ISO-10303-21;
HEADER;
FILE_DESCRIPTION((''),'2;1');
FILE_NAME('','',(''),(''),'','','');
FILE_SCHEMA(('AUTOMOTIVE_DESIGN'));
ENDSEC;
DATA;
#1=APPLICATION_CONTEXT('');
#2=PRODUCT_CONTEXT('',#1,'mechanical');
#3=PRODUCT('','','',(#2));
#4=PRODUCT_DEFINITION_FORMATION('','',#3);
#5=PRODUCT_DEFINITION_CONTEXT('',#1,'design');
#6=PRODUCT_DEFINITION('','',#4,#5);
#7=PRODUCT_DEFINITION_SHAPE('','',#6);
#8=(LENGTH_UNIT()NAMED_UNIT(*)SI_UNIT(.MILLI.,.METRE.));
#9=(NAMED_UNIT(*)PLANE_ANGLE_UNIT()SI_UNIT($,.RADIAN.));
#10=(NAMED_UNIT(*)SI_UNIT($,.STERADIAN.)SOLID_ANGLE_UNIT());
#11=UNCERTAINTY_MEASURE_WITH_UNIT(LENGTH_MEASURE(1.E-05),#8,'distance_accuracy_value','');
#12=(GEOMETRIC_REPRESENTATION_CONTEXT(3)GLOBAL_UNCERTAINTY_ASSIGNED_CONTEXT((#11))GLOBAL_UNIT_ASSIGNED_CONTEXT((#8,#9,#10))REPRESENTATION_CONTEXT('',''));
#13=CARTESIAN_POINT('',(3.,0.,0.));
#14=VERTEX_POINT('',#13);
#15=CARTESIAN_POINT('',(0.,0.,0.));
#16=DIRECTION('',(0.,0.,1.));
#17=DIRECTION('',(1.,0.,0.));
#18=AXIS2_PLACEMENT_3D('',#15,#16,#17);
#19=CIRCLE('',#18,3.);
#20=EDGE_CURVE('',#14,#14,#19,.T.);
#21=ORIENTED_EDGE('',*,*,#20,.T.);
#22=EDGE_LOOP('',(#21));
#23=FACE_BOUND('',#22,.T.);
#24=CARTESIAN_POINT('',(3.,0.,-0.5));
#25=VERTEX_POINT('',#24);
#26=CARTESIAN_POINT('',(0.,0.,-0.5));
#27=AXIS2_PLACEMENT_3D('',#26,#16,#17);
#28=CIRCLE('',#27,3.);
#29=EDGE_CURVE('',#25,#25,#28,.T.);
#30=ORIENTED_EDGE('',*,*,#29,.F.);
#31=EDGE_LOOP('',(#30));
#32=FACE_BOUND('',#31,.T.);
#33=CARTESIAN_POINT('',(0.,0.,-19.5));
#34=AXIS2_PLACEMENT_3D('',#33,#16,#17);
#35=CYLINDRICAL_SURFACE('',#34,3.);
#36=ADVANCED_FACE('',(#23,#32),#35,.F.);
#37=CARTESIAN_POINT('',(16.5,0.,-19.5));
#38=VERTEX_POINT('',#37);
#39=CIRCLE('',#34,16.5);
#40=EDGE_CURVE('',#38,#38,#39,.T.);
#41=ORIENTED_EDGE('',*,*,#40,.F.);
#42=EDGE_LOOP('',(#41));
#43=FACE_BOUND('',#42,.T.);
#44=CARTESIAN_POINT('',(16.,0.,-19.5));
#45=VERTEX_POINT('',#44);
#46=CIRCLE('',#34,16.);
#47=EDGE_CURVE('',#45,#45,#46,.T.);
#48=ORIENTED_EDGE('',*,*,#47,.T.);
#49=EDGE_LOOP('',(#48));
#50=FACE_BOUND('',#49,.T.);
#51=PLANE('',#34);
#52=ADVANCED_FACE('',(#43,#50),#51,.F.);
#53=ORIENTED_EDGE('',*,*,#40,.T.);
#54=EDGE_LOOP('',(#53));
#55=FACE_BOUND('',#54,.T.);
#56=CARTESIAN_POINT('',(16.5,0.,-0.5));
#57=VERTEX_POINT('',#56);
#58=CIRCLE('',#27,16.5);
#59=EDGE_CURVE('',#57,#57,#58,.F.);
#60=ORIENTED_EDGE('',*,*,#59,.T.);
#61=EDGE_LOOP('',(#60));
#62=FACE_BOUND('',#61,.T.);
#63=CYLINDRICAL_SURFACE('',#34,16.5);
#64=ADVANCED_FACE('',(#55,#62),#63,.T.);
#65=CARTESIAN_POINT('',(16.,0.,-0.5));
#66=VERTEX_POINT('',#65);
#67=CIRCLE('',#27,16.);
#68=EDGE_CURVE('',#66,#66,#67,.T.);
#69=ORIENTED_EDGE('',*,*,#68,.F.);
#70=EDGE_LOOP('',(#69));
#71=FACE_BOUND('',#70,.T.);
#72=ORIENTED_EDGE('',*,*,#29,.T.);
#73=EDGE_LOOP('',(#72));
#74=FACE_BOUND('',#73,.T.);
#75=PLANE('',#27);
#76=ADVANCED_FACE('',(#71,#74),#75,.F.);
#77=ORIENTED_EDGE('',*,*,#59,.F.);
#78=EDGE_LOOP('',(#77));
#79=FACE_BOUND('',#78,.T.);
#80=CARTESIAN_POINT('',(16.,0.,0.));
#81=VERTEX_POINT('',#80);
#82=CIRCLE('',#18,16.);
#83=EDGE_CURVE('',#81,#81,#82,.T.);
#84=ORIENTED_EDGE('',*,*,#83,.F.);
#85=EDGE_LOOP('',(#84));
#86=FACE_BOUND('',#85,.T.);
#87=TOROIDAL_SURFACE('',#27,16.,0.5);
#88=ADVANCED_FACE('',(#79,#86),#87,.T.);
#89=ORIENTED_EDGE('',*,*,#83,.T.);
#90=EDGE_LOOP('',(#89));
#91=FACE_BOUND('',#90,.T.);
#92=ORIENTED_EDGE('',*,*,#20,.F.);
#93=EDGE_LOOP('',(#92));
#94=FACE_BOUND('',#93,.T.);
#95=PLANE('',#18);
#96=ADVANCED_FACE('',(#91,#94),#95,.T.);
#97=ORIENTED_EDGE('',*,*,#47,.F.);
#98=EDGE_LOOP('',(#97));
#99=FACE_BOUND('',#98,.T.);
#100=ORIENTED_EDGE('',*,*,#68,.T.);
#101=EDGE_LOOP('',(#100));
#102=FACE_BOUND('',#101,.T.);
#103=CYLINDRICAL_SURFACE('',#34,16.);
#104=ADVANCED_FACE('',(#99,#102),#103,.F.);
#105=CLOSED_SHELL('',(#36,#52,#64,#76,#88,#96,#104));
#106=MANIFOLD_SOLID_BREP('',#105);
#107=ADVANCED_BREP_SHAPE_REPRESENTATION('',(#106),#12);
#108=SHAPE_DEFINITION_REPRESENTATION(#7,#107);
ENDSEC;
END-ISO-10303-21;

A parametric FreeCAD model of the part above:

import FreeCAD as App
import Part
import Sketcher

V = App.Vector


def edges_at(feature, points):
    """Names of the edges that pass closest to the given points."""
    edges = feature.Shape.Edges
    near = lambda p: min(range(len(edges)), key=lambda i: edges[i].distToShape(Part.Vertex(*p))[0])
    return sorted({f"Edge{near(p) + 1}" for p in points})


def faces_at(feature, points):
    """Names of the faces that lie closest to the given points."""
    faces = feature.Shape.Faces
    near = lambda p: min(range(len(faces)), key=lambda i: faces[i].distToShape(Part.Vertex(*p))[0])
    return sorted({f"Face{near(p) + 1}" for p in points})

doc = App.newDocument("Part")
body = doc.addObject("PartDesign::Body", "Body")

sketch1 = doc.addObject("Sketcher::SketchObject", "Sketch")
body.addObject(sketch1)
sketch1.AttachmentSupport = (doc.XY_Plane, [""])
sketch1.MapMode = "FlatFace"
sketch1.addGeometry(Part.Circle(V(0, 0, 0), V(0, 0, 1), 16), False)
sketch1.addConstraint(Sketcher.Constraint("Coincident", 0, 3, -1, 1))
sketch1.addConstraint(Sketcher.Constraint("Diameter", 0, 33.0))
pad1 = doc.addObject("PartDesign::Pad", "Pad")
body.addObject(pad1)
pad1.Profile = sketch1
pad1.Length = 19.5
pad1.Reversed = True
doc.recompute()

thickness = doc.addObject("PartDesign::Thickness", "Thickness")
body.addObject(thickness)
thickness.Base = (pad1, faces_at(pad1, [(0, 0, -19.5)]))
thickness.Value = 0.5
thickness.Reversed = True
thickness.Join = "Intersection"

sketch2 = doc.addObject("Sketcher::SketchObject", "Sketch001")
body.addObject(sketch2)
sketch2.AttachmentSupport = (doc.XY_Plane, [""])
sketch2.MapMode = "FlatFace"
sketch2.addGeometry(Part.Circle(V(0, 0, 0), V(0, 0, 1), 3), False)
sketch2.addConstraint(Sketcher.Constraint("Coincident", 0, 3, -1, 1))
sketch2.addConstraint(Sketcher.Constraint("Diameter", 0, 6.0))
pocket1 = doc.addObject("PartDesign::Pocket", "Pocket")
body.addObject(pocket1)
pocket1.Profile = sketch2
pocket1.Type = "ThroughAll"
doc.recompute()

fillet = doc.addObject("PartDesign::Fillet", "Fillet")
body.addObject(fillet)
fillet.Base = (pocket1, edges_at(pocket1, [(-16.5, 0, 0)]))
fillet.Radius = 0.5

doc.recompute()
